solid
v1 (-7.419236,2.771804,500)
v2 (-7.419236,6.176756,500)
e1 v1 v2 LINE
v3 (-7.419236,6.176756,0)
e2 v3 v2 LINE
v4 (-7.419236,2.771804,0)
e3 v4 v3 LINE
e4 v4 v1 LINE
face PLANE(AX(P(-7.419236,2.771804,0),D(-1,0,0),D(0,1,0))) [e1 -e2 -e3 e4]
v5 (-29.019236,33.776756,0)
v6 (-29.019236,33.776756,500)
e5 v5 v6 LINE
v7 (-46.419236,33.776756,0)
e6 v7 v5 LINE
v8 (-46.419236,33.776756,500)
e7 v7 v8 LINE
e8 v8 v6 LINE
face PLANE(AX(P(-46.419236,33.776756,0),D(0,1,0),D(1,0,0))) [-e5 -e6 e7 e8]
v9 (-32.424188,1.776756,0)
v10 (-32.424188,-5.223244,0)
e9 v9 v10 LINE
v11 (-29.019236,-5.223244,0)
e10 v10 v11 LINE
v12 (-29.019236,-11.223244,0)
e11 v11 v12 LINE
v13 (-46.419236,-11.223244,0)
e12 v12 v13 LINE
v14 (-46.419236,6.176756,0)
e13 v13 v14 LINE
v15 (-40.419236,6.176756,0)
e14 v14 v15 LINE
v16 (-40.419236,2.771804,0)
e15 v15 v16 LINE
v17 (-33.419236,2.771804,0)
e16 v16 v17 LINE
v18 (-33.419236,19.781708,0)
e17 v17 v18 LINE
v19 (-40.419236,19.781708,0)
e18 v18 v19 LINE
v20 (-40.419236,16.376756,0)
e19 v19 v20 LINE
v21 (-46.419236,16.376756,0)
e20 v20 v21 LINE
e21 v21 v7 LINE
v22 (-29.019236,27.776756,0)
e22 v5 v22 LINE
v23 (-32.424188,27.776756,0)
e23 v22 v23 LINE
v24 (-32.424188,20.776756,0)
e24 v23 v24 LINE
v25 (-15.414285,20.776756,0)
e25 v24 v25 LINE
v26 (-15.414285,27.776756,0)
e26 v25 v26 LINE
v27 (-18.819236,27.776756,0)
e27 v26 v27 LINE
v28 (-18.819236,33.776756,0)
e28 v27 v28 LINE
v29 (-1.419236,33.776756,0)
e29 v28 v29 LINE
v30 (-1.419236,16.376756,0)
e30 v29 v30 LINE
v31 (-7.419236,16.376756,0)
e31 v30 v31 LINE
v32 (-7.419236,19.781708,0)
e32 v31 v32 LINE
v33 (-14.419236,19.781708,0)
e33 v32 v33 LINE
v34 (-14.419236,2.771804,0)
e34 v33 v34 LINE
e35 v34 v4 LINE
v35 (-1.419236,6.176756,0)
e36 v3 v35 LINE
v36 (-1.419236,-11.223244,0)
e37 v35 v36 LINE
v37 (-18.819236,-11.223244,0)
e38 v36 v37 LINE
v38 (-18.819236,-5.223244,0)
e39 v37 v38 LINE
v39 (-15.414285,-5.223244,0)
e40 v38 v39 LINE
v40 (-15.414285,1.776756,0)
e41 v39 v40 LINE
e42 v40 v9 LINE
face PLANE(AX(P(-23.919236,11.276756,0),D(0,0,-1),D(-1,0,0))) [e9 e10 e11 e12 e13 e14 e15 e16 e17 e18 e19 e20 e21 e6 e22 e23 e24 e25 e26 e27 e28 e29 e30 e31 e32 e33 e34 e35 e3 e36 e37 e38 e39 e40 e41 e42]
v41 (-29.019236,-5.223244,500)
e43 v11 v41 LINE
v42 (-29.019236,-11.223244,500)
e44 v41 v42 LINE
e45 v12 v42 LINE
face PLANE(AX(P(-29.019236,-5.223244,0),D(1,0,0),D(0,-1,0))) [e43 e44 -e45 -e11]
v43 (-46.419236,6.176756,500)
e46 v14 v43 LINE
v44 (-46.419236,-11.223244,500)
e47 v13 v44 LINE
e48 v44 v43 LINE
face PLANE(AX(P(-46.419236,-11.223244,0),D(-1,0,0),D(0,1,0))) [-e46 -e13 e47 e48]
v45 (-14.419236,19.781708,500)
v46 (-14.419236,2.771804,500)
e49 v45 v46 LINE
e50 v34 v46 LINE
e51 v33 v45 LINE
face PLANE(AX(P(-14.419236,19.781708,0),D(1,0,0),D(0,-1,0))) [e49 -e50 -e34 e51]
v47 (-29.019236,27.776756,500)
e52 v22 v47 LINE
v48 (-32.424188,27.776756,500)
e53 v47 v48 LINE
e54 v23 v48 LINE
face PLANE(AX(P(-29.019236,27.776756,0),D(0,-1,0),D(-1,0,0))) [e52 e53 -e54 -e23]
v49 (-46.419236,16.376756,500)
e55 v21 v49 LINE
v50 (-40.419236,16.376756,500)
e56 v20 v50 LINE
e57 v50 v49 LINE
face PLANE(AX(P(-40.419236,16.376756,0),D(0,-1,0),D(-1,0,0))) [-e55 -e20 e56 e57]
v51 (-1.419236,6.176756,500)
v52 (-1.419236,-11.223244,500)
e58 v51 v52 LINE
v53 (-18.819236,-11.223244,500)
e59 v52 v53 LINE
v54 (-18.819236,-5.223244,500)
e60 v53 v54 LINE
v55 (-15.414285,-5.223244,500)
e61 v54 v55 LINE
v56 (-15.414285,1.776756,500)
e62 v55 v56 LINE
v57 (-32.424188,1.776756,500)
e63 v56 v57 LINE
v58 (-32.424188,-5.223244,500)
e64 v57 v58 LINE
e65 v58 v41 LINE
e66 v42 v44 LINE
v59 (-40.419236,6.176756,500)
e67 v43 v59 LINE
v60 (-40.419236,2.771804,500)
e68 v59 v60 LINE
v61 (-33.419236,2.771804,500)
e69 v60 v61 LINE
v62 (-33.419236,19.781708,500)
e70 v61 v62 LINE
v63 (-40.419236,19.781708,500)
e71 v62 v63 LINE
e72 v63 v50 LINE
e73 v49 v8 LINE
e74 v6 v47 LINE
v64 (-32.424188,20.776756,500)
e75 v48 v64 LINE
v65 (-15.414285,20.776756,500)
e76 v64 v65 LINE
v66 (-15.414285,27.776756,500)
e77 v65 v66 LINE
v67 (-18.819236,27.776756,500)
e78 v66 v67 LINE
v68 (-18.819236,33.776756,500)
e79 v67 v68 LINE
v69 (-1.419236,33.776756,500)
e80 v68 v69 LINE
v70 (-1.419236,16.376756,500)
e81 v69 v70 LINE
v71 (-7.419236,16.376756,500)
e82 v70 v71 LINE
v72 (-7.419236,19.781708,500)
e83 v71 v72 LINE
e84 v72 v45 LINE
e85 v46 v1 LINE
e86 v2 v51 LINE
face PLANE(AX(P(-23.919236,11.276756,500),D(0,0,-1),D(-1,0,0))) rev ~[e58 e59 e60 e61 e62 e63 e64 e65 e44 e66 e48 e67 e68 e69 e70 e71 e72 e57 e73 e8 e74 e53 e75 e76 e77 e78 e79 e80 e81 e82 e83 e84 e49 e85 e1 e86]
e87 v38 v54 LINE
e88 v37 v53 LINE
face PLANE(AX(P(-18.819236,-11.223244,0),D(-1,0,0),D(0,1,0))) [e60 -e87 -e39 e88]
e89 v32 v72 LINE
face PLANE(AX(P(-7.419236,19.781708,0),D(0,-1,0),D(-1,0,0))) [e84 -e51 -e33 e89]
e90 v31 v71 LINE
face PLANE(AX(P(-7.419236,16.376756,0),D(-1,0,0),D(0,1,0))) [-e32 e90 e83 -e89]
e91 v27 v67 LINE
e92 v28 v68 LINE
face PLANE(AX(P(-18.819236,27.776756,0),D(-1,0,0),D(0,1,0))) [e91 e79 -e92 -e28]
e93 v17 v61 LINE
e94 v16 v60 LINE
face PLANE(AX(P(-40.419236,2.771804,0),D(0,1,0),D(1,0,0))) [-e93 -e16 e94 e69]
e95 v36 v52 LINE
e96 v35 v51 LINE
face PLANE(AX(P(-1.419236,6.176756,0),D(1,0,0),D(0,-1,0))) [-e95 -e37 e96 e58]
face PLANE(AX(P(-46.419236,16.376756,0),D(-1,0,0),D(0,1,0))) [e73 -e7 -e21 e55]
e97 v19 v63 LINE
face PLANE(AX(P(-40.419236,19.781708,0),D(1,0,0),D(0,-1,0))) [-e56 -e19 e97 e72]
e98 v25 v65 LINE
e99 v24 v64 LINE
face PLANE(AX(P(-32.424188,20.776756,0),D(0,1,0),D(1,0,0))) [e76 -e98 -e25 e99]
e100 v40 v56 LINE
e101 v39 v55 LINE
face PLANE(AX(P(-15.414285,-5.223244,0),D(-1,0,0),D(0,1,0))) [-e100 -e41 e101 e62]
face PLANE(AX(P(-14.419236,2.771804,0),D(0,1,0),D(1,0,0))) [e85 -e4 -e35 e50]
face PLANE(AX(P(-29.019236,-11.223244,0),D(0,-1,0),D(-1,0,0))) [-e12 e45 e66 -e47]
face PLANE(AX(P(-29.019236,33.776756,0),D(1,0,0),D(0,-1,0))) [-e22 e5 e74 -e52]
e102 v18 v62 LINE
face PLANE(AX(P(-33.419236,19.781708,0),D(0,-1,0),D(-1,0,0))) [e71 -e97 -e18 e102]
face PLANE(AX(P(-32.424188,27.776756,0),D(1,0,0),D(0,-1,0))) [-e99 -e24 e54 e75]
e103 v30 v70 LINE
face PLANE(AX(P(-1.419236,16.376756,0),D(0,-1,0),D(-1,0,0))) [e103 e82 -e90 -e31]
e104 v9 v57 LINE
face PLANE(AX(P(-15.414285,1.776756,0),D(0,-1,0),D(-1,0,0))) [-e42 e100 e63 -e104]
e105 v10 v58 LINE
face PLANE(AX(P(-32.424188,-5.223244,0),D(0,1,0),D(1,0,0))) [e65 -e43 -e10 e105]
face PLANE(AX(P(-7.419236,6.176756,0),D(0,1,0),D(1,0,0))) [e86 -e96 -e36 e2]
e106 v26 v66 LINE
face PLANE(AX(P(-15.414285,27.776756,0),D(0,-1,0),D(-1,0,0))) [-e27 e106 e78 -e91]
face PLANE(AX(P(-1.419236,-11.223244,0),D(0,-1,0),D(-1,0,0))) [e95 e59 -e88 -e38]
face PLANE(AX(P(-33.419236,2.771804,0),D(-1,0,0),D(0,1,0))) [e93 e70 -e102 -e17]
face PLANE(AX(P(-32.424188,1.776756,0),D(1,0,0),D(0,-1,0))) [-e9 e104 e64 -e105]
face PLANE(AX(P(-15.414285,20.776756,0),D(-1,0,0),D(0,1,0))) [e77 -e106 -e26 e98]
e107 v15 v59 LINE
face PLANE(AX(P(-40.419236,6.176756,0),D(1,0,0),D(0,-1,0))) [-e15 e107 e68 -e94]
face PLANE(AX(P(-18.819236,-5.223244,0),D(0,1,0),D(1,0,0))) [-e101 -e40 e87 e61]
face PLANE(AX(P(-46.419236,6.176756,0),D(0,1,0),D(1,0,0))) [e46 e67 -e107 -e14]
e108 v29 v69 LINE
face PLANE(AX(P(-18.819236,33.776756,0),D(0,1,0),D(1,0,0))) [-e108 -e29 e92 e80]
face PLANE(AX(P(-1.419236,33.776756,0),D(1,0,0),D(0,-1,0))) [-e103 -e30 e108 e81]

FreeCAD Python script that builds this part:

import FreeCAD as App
import Part
import Sketcher
from FreeCAD import Vector

doc = App.newDocument("Part")
params = doc.addObject("Spreadsheet::Sheet", "Params")
for row, (alias, value) in enumerate([
    ("sketch1_width", "6 mm"),
    ("sketch1_width2", "7 mm"),
    ("sketch1_width3", "17.4 mm"),
    ("pad1_length", "500 mm"),
], start=1):
    params.set(f"A{row}", alias)
    params.set(f"B{row}", "=" + value)
    params.setAlias(f"B{row}", alias)

body = doc.addObject("PartDesign::Body", "Body")

sketch1 = body.newObject("Sketcher::SketchObject", "Sketch")
sketch1.AttachmentSupport = (doc.getObject("XY_Plane"), [""])
sketch1.MapMode = "FlatFace"
sketch1.addGeometry([
    Part.LineSegment(Vector(-1.4, 33.8, 0), Vector(-18.8, 33.8, 0)),
    Part.LineSegment(Vector(-18.8, 33.8, 0), Vector(-18.8, 27.8, 0)),
    Part.LineSegment(Vector(-18.8, 27.8, 0), Vector(-15.4, 27.8, 0)),
    Part.LineSegment(Vector(-15.4, 27.8, 0), Vector(-15.4, 20.8, 0)),
    Part.LineSegment(Vector(-15.4, 20.8, 0), Vector(-32.4, 20.8, 0)),
    Part.LineSegment(Vector(-32.4, 20.8, 0), Vector(-32.4, 27.8, 0)),
    Part.LineSegment(Vector(-32.4, 27.8, 0), Vector(-29, 27.8, 0)),
    Part.LineSegment(Vector(-29, 27.8, 0), Vector(-29, 33.8, 0)),
    Part.LineSegment(Vector(-29, 33.8, 0), Vector(-46.4, 33.8, 0)),
    Part.LineSegment(Vector(-46.4, 33.8, 0), Vector(-46.4, 16.4, 0)),
    Part.LineSegment(Vector(-46.4, 16.4, 0), Vector(-40.4, 16.4, 0)),
    Part.LineSegment(Vector(-40.4, 16.4, 0), Vector(-40.4, 19.8, 0)),
    Part.LineSegment(Vector(-40.4, 19.8, 0), Vector(-33.4, 19.8, 0)),
    Part.LineSegment(Vector(-33.4, 19.8, 0), Vector(-33.4, 2.8, 0)),
    Part.LineSegment(Vector(-33.4, 2.8, 0), Vector(-40.4, 2.8, 0)),
    Part.LineSegment(Vector(-40.4, 2.8, 0), Vector(-40.4, 6.2, 0)),
    Part.LineSegment(Vector(-40.4, 6.2, 0), Vector(-46.4, 6.2, 0)),
    Part.LineSegment(Vector(-46.4, 6.2, 0), Vector(-46.4, -11.2, 0)),
    Part.LineSegment(Vector(-46.4, -11.2, 0), Vector(-29, -11.2, 0)),
    Part.LineSegment(Vector(-29, -11.2, 0), Vector(-29, -5.2, 0)),
    Part.LineSegment(Vector(-29, -5.2, 0), Vector(-32.4, -5.2, 0)),
    Part.LineSegment(Vector(-32.4, -5.2, 0), Vector(-32.4, 1.8, 0)),
    Part.LineSegment(Vector(-32.4, 1.8, 0), Vector(-15.4, 1.8, 0)),
    Part.LineSegment(Vector(-15.4, 1.8, 0), Vector(-15.4, -5.2, 0)),
    Part.LineSegment(Vector(-15.4, -5.2, 0), Vector(-18.8, -5.2, 0)),
    Part.LineSegment(Vector(-18.8, -5.2, 0), Vector(-18.8, -11.2, 0)),
    Part.LineSegment(Vector(-18.8, -11.2, 0), Vector(-1.4, -11.2, 0)),
    Part.LineSegment(Vector(-1.4, -11.2, 0), Vector(-1.4, 6.2, 0)),
    Part.LineSegment(Vector(-1.4, 6.2, 0), Vector(-7.4, 6.2, 0)),
    Part.LineSegment(Vector(-7.4, 6.2, 0), Vector(-7.4, 2.8, 0)),
    Part.LineSegment(Vector(-7.4, 2.8, 0), Vector(-14.4, 2.8, 0)),
    Part.LineSegment(Vector(-14.4, 2.8, 0), Vector(-14.4, 19.8, 0)),
    Part.LineSegment(Vector(-14.4, 19.8, 0), Vector(-7.4, 19.8, 0)),
    Part.LineSegment(Vector(-7.4, 19.8, 0), Vector(-7.4, 16.4, 0)),
    Part.LineSegment(Vector(-7.4, 16.4, 0), Vector(-1.4, 16.4, 0)),
    Part.LineSegment(Vector(-1.4, 16.4, 0), Vector(-1.4, 33.8, 0)),
], False)
sketch1.addConstraint([
    Sketcher.Constraint("Coincident", 0, 2, 1, 1),
    Sketcher.Constraint("Coincident", 1, 2, 2, 1),
    Sketcher.Constraint("Coincident", 2, 2, 3, 1),
    Sketcher.Constraint("Coincident", 3, 2, 4, 1),
    Sketcher.Constraint("Coincident", 4, 2, 5, 1),
    Sketcher.Constraint("Coincident", 5, 2, 6, 1),
    Sketcher.Constraint("Coincident", 6, 2, 7, 1),
    Sketcher.Constraint("Coincident", 7, 2, 8, 1),
    Sketcher.Constraint("Coincident", 8, 2, 9, 1),
    Sketcher.Constraint("Coincident", 9, 2, 10, 1),
    Sketcher.Constraint("Coincident", 10, 2, 11, 1),
    Sketcher.Constraint("Coincident", 11, 2, 12, 1),
    Sketcher.Constraint("Coincident", 12, 2, 13, 1),
    Sketcher.Constraint("Coincident", 13, 2, 14, 1),
    Sketcher.Constraint("Coincident", 14, 2, 15, 1),
    Sketcher.Constraint("Coincident", 15, 2, 16, 1),
    Sketcher.Constraint("Coincident", 16, 2, 17, 1),
    Sketcher.Constraint("Coincident", 17, 2, 18, 1),
    Sketcher.Constraint("Coincident", 18, 2, 19, 1),
    Sketcher.Constraint("Coincident", 19, 2, 20, 1),
    Sketcher.Constraint("Coincident", 20, 2, 21, 1),
    Sketcher.Constraint("Coincident", 21, 2, 22, 1),
    Sketcher.Constraint("Coincident", 22, 2, 23, 1),
    Sketcher.Constraint("Coincident", 23, 2, 24, 1),
    Sketcher.Constraint("Coincident", 24, 2, 25, 1),
    Sketcher.Constraint("Coincident", 25, 2, 26, 1),
    Sketcher.Constraint("Coincident", 26, 2, 27, 1),
    Sketcher.Constraint("Coincident", 27, 2, 28, 1),
    Sketcher.Constraint("Coincident", 28, 2, 29, 1),
    Sketcher.Constraint("Coincident", 29, 2, 30, 1),
    Sketcher.Constraint("Coincident", 30, 2, 31, 1),
    Sketcher.Constraint("Coincident", 31, 2, 32, 1),
    Sketcher.Constraint("Coincident", 32, 2, 33, 1),
    Sketcher.Constraint("Coincident", 33, 2, 34, 1),
    Sketcher.Constraint("Coincident", 34, 2, 35, 1),
    Sketcher.Constraint("Coincident", 35, 2, 0, 1),
    Sketcher.Constraint("Horizontal", 0),
    Sketcher.Constraint("Vertical", 1),
    Sketcher.Constraint("Horizontal", 2),
    Sketcher.Constraint("Vertical", 3),
    Sketcher.Constraint("Horizontal", 4),
    Sketcher.Constraint("Vertical", 5),
    Sketcher.Constraint("Horizontal", 6),
    Sketcher.Constraint("Vertical", 7),
    Sketcher.Constraint("Horizontal", 8),
    Sketcher.Constraint("Vertical", 9),
    Sketcher.Constraint("Horizontal", 10),
    Sketcher.Constraint("Vertical", 11),
    Sketcher.Constraint("Horizontal", 12),
    Sketcher.Constraint("Vertical", 13),
    Sketcher.Constraint("Horizontal", 14),
    Sketcher.Constraint("Vertical", 15),
    Sketcher.Constraint("Horizontal", 16),
    Sketcher.Constraint("Vertical", 17),
    Sketcher.Constraint("Horizontal", 18),
    Sketcher.Constraint("Vertical", 19),
    Sketcher.Constraint("Horizontal", 20),
    Sketcher.Constraint("Vertical", 21),
    Sketcher.Constraint("Horizontal", 22),
    Sketcher.Constraint("Vertical", 23),
    Sketcher.Constraint("Horizontal", 24),
    Sketcher.Constraint("Vertical", 25),
    Sketcher.Constraint("Horizontal", 26),
    Sketcher.Constraint("Vertical", 27),
    Sketcher.Constraint("Horizontal", 28),
    Sketcher.Constraint("Vertical", 29),
    Sketcher.Constraint("Horizontal", 30),
    Sketcher.Constraint("Vertical", 31),
    Sketcher.Constraint("Horizontal", 32),
    Sketcher.Constraint("Vertical", 33),
    Sketcher.Constraint("Horizontal", 34),
    Sketcher.Constraint("Vertical", 35),
    Sketcher.Constraint("Horizontal", 2, 2, 5, 2),
    Sketcher.Constraint("Horizontal", 0, 2, 7, 2),
    Sketcher.Constraint("Horizontal", 20, 2, 23, 2),
    Sketcher.Constraint("Horizontal", 18, 2, 25, 2),
    Sketcher.Constraint("Horizontal", 16, 2, 27, 2),
    Sketcher.Constraint("Horizontal", 14, 2, 29, 2),
    Sketcher.Constraint("Horizontal", 12, 2, 31, 2),
    Sketcher.Constraint("Horizontal", 10, 2, 33, 2),
    Sketcher.Constraint("Vertical", 11, 2, 14, 2),
    Sketcher.Constraint("Vertical", 9, 2, 16, 2),
    Sketcher.Constraint("Vertical", 7, 2, 18, 2),
    Sketcher.Constraint("Vertical", 5, 2, 20, 2),
    Sketcher.Constraint("Vertical", 3, 2, 22, 2),
    Sketcher.Constraint("Vertical", 1, 2, 24, 2),
    Sketcher.Constraint("Vertical", 29, 2, 32, 2),
    Sketcher.Constraint("Vertical", 27, 2, 34, 2),
    Sketcher.Constraint("Equal", 2, 6),
    Sketcher.Constraint("Equal", 0, 8),
    Sketcher.Constraint("Equal", 16, 28),
    Sketcher.Constraint("Equal", 14, 30),
    Sketcher.Constraint("Equal", 34, 1),
    Sketcher.Constraint("Equal", 32, 3),
    Sketcher.Constraint("Equal", 26, 9),
    Sketcher.Constraint("Equal", 24, 11),
    Sketcher.Constraint("Equal", 22, 13),
    Sketcher.Constraint("Equal", 11, 15),
    Sketcher.Constraint("Equal", 9, 17),
    Sketcher.Constraint("Equal", 7, 19),
    Sketcher.Constraint("Equal", 5, 21),
    Sketcher.Constraint("DistanceX", 10, 1, 10, 2, 6.0),
    Sketcher.Constraint("DistanceX", 12, 1, 12, 2, 7.0),
    Sketcher.Constraint("DistanceX", 0, 2, 0, 1, 17.4),
    Sketcher.Constraint("DistanceX", 6, 2, 1, 2, 10.2),
    Sketcher.Constraint("DistanceX", 2, 1, 2, 2, 3.404952),
    Sketcher.Constraint("DistanceX", 0, 2, -1, 1, 18.819236),
    Sketcher.Constraint("DistanceY", -1, 1, 0, 2, 33.776756),
])
sketch1.setExpression("Constraints[101]", "Params.sketch1_width")
sketch1.setExpression("Constraints[102]", "Params.sketch1_width2")
sketch1.setExpression("Constraints[103]", "Params.sketch1_width3")
pad1 = body.newObject("PartDesign::Pad", "Pad")
pad1.Profile = sketch1
pad1.setExpression("Length", "Params.pad1_length")

doc.recompute()
